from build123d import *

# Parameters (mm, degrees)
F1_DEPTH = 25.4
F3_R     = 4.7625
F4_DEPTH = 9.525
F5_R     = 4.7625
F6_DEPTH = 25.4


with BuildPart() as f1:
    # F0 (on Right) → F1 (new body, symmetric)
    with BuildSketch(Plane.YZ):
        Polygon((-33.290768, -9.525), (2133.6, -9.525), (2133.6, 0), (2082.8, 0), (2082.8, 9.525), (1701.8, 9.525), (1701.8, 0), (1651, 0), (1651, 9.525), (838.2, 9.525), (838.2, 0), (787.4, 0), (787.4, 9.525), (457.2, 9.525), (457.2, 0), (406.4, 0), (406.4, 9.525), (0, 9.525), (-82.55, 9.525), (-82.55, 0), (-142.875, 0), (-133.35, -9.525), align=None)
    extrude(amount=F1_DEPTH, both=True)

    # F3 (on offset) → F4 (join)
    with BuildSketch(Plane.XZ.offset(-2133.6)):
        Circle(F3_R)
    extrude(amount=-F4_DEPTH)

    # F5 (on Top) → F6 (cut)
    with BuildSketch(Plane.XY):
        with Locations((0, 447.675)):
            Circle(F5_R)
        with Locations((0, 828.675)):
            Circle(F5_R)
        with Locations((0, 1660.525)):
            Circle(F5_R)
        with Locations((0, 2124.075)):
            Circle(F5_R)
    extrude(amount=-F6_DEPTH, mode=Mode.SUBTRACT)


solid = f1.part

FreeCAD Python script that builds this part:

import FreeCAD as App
import Part
import Sketcher
Q = App.Units.Quantity


def add_polygon(sketch, points):
    """Adds a closed chain of lines whose ends are joined by coincident constraints."""
    first, n = sketch.GeometryCount, len(points)
    for a, b in zip(points, points[1:] + points[:1]):
        sketch.addGeometry(Part.LineSegment(App.Vector(*a, 0), App.Vector(*b, 0)), False)
    for i in range(n):
        sketch.addConstraint(Sketcher.Constraint("Coincident", first + i, 2, first + (i + 1) % n, 1))

doc = App.newDocument("Part")
body = doc.addObject("PartDesign::Body", "Body")

# Sketch on YZ plane
sketch1 = doc.addObject("Sketcher::SketchObject", "Sketch")
body.addObject(sketch1)
sketch1.AttachmentSupport = (doc.YZ_Plane, [""])
sketch1.MapMode = "FlatFace"
add_polygon(sketch1, [(2134, -10), (2134, 0), (2083, 0), (2083, 10), (1702, 10), (1702, 0), (1651, 0), (1651, 10), (838, 10), (838, 0), (787, 0), (787, 10), (457, 10), (457, 0), (406, 0), (406, 10), (-83, 10), (-83, 0), (-143, 0), (-133, -10)])  # lines 0-19
sketch1.addConstraint([
    Sketcher.Constraint("Vertical", 0),
    Sketcher.Constraint("Horizontal", 1),
    Sketcher.Constraint("Vertical", 2),
    Sketcher.Constraint("Horizontal", 3),
    Sketcher.Constraint("Vertical", 4),
    Sketcher.Constraint("Horizontal", 5),
    Sketcher.Constraint("Vertical", 6),
    Sketcher.Constraint("Horizontal", 7),
    Sketcher.Constraint("Vertical", 8),
    Sketcher.Constraint("Horizontal", 9),
    Sketcher.Constraint("Vertical", 10),
    Sketcher.Constraint("Horizontal", 11),
    Sketcher.Constraint("Vertical", 12),
    Sketcher.Constraint("Horizontal", 13),
    Sketcher.Constraint("Vertical", 14),
    Sketcher.Constraint("Horizontal", 15),
    Sketcher.Constraint("Vertical", 16),
    Sketcher.Constraint("Horizontal", 17),
    Sketcher.Constraint("Horizontal", 19),
    Sketcher.Constraint("PointOnObject", 0, 2, -1),
    Sketcher.Constraint("PointOnObject", 4, 2, -1),
    Sketcher.Constraint("PointOnObject", 8, 2, -1),
    Sketcher.Constraint("PointOnObject", 12, 2, -1),
    Sketcher.Constraint("PointOnObject", 16, 2, -1),
    Sketcher.Constraint("Horizontal", 3, 2, 6, 2),
    Sketcher.Constraint("Horizontal", 7, 2, 10, 2),
    Sketcher.Constraint("Horizontal", 11, 2, 14, 2),
    Sketcher.Constraint("Equal", 1, 5),
    Sketcher.Constraint("Equal", 5, 9),
    Sketcher.Constraint("Equal", 9, 13),
    Sketcher.Constraint("Equal", 0, 2),
    Sketcher.Constraint("DistanceX", 1, 2, 1, 1, Q("2 in")),
    Sketcher.Constraint("DistanceX", 3, 2, 3, 1, Q("15 in")),
    Sketcher.Constraint("DistanceX", 7, 2, 7, 1, Q("32 in")),
    Sketcher.Constraint("DistanceX", 11, 2, 11, 1, Q("13 in")),
    Sketcher.Constraint("DistanceX", -1, 1, 0, 2, Q("84 in")),
    Sketcher.Constraint("Angle", 18, Q("-45 deg")),
    Sketcher.Constraint("DistanceX", 18, 2, 16, 2, Q("2 in")),
    Sketcher.Constraint("DistanceX", 15, 2, 15, 1, Q("19.25 in")),
    Sketcher.Constraint("DistanceX", 17, 2, 17, 1, Q("2.375 in")),
])
pad1 = doc.addObject("PartDesign::Pad", "Pad")
body.addObject(pad1)
pad1.Profile = sketch1
pad1.Length = Q("2 in")
pad1.Midplane = True

# Sketch on XZ plane
sketch2 = doc.addObject("Sketcher::SketchObject", "Sketch001")
body.addObject(sketch2)
sketch2.AttachmentSupport = (doc.XZ_Plane, [""])
sketch2.MapMode = "FlatFace"
sketch2.AttachmentOffset = App.Placement(App.Vector(0, 0, -84 * 25.4), App.Rotation())
sketch2.addGeometry(Part.Circle(App.Vector(0, 0, 0), App.Vector(0, 0, 1), 4.8), False)
sketch2.addConstraint([
    Sketcher.Constraint("Coincident", 0, 3, -1, 1),
    Sketcher.Constraint("Diameter", 0, Q("0.375 in")),
])
pad2 = doc.addObject("PartDesign::Pad", "Pad001")
body.addObject(pad2)
pad2.Profile = sketch2
pad2.Length = Q("0.375 in")
pad2.Reversed = True

# Sketch on XY plane
sketch3 = doc.addObject("Sketcher::SketchObject", "Sketch002")
body.addObject(sketch3)
sketch3.AttachmentSupport = (doc.XY_Plane, [""])
sketch3.MapMode = "FlatFace"
sketch3.addGeometry([
    Part.Circle(App.Vector(0, 447.7, 0), App.Vector(0, 0, 1), 4.8),
    Part.Circle(App.Vector(0, 828.7, 0), App.Vector(0, 0, 1), 4.8),
    Part.Circle(App.Vector(0, 1660.5, 0), App.Vector(0, 0, 1), 4.8),
    Part.Circle(App.Vector(0, 2124.1, 0), App.Vector(0, 0, 1), 4.8),
], False)
sketch3.addConstraint([
    Sketcher.Constraint("Equal", 0, 1),
    Sketcher.Constraint("Equal", 1, 2),
    Sketcher.Constraint("Equal", 2, 3),
    Sketcher.Constraint("PointOnObject", 0, 3, -2),
    Sketcher.Constraint("PointOnObject", 1, 3, -2),
    Sketcher.Constraint("PointOnObject", 2, 3, -2),
    Sketcher.Constraint("PointOnObject", 3, 3, -2),
    Sketcher.Constraint("Diameter", 0, Q("0.375 in")),
    Sketcher.Constraint("DistanceY", 0, 3, 1, 3, Q("15 in")),
    Sketcher.Constraint("DistanceY", 1, 3, 3, 3, Q("51 in")),
    Sketcher.Constraint("DistanceY", 1, 3, 2, 3, Q("32.75 in")),
    Sketcher.Constraint("DistanceY", -1, 1, 0, 3, Q("17.625 in")),
])
pocket1 = doc.addObject("PartDesign::Pocket", "Pocket")
body.addObject(pocket1)
pocket1.Profile = sketch3
pocket1.Length = Q("1 in")

doc.recompute()
